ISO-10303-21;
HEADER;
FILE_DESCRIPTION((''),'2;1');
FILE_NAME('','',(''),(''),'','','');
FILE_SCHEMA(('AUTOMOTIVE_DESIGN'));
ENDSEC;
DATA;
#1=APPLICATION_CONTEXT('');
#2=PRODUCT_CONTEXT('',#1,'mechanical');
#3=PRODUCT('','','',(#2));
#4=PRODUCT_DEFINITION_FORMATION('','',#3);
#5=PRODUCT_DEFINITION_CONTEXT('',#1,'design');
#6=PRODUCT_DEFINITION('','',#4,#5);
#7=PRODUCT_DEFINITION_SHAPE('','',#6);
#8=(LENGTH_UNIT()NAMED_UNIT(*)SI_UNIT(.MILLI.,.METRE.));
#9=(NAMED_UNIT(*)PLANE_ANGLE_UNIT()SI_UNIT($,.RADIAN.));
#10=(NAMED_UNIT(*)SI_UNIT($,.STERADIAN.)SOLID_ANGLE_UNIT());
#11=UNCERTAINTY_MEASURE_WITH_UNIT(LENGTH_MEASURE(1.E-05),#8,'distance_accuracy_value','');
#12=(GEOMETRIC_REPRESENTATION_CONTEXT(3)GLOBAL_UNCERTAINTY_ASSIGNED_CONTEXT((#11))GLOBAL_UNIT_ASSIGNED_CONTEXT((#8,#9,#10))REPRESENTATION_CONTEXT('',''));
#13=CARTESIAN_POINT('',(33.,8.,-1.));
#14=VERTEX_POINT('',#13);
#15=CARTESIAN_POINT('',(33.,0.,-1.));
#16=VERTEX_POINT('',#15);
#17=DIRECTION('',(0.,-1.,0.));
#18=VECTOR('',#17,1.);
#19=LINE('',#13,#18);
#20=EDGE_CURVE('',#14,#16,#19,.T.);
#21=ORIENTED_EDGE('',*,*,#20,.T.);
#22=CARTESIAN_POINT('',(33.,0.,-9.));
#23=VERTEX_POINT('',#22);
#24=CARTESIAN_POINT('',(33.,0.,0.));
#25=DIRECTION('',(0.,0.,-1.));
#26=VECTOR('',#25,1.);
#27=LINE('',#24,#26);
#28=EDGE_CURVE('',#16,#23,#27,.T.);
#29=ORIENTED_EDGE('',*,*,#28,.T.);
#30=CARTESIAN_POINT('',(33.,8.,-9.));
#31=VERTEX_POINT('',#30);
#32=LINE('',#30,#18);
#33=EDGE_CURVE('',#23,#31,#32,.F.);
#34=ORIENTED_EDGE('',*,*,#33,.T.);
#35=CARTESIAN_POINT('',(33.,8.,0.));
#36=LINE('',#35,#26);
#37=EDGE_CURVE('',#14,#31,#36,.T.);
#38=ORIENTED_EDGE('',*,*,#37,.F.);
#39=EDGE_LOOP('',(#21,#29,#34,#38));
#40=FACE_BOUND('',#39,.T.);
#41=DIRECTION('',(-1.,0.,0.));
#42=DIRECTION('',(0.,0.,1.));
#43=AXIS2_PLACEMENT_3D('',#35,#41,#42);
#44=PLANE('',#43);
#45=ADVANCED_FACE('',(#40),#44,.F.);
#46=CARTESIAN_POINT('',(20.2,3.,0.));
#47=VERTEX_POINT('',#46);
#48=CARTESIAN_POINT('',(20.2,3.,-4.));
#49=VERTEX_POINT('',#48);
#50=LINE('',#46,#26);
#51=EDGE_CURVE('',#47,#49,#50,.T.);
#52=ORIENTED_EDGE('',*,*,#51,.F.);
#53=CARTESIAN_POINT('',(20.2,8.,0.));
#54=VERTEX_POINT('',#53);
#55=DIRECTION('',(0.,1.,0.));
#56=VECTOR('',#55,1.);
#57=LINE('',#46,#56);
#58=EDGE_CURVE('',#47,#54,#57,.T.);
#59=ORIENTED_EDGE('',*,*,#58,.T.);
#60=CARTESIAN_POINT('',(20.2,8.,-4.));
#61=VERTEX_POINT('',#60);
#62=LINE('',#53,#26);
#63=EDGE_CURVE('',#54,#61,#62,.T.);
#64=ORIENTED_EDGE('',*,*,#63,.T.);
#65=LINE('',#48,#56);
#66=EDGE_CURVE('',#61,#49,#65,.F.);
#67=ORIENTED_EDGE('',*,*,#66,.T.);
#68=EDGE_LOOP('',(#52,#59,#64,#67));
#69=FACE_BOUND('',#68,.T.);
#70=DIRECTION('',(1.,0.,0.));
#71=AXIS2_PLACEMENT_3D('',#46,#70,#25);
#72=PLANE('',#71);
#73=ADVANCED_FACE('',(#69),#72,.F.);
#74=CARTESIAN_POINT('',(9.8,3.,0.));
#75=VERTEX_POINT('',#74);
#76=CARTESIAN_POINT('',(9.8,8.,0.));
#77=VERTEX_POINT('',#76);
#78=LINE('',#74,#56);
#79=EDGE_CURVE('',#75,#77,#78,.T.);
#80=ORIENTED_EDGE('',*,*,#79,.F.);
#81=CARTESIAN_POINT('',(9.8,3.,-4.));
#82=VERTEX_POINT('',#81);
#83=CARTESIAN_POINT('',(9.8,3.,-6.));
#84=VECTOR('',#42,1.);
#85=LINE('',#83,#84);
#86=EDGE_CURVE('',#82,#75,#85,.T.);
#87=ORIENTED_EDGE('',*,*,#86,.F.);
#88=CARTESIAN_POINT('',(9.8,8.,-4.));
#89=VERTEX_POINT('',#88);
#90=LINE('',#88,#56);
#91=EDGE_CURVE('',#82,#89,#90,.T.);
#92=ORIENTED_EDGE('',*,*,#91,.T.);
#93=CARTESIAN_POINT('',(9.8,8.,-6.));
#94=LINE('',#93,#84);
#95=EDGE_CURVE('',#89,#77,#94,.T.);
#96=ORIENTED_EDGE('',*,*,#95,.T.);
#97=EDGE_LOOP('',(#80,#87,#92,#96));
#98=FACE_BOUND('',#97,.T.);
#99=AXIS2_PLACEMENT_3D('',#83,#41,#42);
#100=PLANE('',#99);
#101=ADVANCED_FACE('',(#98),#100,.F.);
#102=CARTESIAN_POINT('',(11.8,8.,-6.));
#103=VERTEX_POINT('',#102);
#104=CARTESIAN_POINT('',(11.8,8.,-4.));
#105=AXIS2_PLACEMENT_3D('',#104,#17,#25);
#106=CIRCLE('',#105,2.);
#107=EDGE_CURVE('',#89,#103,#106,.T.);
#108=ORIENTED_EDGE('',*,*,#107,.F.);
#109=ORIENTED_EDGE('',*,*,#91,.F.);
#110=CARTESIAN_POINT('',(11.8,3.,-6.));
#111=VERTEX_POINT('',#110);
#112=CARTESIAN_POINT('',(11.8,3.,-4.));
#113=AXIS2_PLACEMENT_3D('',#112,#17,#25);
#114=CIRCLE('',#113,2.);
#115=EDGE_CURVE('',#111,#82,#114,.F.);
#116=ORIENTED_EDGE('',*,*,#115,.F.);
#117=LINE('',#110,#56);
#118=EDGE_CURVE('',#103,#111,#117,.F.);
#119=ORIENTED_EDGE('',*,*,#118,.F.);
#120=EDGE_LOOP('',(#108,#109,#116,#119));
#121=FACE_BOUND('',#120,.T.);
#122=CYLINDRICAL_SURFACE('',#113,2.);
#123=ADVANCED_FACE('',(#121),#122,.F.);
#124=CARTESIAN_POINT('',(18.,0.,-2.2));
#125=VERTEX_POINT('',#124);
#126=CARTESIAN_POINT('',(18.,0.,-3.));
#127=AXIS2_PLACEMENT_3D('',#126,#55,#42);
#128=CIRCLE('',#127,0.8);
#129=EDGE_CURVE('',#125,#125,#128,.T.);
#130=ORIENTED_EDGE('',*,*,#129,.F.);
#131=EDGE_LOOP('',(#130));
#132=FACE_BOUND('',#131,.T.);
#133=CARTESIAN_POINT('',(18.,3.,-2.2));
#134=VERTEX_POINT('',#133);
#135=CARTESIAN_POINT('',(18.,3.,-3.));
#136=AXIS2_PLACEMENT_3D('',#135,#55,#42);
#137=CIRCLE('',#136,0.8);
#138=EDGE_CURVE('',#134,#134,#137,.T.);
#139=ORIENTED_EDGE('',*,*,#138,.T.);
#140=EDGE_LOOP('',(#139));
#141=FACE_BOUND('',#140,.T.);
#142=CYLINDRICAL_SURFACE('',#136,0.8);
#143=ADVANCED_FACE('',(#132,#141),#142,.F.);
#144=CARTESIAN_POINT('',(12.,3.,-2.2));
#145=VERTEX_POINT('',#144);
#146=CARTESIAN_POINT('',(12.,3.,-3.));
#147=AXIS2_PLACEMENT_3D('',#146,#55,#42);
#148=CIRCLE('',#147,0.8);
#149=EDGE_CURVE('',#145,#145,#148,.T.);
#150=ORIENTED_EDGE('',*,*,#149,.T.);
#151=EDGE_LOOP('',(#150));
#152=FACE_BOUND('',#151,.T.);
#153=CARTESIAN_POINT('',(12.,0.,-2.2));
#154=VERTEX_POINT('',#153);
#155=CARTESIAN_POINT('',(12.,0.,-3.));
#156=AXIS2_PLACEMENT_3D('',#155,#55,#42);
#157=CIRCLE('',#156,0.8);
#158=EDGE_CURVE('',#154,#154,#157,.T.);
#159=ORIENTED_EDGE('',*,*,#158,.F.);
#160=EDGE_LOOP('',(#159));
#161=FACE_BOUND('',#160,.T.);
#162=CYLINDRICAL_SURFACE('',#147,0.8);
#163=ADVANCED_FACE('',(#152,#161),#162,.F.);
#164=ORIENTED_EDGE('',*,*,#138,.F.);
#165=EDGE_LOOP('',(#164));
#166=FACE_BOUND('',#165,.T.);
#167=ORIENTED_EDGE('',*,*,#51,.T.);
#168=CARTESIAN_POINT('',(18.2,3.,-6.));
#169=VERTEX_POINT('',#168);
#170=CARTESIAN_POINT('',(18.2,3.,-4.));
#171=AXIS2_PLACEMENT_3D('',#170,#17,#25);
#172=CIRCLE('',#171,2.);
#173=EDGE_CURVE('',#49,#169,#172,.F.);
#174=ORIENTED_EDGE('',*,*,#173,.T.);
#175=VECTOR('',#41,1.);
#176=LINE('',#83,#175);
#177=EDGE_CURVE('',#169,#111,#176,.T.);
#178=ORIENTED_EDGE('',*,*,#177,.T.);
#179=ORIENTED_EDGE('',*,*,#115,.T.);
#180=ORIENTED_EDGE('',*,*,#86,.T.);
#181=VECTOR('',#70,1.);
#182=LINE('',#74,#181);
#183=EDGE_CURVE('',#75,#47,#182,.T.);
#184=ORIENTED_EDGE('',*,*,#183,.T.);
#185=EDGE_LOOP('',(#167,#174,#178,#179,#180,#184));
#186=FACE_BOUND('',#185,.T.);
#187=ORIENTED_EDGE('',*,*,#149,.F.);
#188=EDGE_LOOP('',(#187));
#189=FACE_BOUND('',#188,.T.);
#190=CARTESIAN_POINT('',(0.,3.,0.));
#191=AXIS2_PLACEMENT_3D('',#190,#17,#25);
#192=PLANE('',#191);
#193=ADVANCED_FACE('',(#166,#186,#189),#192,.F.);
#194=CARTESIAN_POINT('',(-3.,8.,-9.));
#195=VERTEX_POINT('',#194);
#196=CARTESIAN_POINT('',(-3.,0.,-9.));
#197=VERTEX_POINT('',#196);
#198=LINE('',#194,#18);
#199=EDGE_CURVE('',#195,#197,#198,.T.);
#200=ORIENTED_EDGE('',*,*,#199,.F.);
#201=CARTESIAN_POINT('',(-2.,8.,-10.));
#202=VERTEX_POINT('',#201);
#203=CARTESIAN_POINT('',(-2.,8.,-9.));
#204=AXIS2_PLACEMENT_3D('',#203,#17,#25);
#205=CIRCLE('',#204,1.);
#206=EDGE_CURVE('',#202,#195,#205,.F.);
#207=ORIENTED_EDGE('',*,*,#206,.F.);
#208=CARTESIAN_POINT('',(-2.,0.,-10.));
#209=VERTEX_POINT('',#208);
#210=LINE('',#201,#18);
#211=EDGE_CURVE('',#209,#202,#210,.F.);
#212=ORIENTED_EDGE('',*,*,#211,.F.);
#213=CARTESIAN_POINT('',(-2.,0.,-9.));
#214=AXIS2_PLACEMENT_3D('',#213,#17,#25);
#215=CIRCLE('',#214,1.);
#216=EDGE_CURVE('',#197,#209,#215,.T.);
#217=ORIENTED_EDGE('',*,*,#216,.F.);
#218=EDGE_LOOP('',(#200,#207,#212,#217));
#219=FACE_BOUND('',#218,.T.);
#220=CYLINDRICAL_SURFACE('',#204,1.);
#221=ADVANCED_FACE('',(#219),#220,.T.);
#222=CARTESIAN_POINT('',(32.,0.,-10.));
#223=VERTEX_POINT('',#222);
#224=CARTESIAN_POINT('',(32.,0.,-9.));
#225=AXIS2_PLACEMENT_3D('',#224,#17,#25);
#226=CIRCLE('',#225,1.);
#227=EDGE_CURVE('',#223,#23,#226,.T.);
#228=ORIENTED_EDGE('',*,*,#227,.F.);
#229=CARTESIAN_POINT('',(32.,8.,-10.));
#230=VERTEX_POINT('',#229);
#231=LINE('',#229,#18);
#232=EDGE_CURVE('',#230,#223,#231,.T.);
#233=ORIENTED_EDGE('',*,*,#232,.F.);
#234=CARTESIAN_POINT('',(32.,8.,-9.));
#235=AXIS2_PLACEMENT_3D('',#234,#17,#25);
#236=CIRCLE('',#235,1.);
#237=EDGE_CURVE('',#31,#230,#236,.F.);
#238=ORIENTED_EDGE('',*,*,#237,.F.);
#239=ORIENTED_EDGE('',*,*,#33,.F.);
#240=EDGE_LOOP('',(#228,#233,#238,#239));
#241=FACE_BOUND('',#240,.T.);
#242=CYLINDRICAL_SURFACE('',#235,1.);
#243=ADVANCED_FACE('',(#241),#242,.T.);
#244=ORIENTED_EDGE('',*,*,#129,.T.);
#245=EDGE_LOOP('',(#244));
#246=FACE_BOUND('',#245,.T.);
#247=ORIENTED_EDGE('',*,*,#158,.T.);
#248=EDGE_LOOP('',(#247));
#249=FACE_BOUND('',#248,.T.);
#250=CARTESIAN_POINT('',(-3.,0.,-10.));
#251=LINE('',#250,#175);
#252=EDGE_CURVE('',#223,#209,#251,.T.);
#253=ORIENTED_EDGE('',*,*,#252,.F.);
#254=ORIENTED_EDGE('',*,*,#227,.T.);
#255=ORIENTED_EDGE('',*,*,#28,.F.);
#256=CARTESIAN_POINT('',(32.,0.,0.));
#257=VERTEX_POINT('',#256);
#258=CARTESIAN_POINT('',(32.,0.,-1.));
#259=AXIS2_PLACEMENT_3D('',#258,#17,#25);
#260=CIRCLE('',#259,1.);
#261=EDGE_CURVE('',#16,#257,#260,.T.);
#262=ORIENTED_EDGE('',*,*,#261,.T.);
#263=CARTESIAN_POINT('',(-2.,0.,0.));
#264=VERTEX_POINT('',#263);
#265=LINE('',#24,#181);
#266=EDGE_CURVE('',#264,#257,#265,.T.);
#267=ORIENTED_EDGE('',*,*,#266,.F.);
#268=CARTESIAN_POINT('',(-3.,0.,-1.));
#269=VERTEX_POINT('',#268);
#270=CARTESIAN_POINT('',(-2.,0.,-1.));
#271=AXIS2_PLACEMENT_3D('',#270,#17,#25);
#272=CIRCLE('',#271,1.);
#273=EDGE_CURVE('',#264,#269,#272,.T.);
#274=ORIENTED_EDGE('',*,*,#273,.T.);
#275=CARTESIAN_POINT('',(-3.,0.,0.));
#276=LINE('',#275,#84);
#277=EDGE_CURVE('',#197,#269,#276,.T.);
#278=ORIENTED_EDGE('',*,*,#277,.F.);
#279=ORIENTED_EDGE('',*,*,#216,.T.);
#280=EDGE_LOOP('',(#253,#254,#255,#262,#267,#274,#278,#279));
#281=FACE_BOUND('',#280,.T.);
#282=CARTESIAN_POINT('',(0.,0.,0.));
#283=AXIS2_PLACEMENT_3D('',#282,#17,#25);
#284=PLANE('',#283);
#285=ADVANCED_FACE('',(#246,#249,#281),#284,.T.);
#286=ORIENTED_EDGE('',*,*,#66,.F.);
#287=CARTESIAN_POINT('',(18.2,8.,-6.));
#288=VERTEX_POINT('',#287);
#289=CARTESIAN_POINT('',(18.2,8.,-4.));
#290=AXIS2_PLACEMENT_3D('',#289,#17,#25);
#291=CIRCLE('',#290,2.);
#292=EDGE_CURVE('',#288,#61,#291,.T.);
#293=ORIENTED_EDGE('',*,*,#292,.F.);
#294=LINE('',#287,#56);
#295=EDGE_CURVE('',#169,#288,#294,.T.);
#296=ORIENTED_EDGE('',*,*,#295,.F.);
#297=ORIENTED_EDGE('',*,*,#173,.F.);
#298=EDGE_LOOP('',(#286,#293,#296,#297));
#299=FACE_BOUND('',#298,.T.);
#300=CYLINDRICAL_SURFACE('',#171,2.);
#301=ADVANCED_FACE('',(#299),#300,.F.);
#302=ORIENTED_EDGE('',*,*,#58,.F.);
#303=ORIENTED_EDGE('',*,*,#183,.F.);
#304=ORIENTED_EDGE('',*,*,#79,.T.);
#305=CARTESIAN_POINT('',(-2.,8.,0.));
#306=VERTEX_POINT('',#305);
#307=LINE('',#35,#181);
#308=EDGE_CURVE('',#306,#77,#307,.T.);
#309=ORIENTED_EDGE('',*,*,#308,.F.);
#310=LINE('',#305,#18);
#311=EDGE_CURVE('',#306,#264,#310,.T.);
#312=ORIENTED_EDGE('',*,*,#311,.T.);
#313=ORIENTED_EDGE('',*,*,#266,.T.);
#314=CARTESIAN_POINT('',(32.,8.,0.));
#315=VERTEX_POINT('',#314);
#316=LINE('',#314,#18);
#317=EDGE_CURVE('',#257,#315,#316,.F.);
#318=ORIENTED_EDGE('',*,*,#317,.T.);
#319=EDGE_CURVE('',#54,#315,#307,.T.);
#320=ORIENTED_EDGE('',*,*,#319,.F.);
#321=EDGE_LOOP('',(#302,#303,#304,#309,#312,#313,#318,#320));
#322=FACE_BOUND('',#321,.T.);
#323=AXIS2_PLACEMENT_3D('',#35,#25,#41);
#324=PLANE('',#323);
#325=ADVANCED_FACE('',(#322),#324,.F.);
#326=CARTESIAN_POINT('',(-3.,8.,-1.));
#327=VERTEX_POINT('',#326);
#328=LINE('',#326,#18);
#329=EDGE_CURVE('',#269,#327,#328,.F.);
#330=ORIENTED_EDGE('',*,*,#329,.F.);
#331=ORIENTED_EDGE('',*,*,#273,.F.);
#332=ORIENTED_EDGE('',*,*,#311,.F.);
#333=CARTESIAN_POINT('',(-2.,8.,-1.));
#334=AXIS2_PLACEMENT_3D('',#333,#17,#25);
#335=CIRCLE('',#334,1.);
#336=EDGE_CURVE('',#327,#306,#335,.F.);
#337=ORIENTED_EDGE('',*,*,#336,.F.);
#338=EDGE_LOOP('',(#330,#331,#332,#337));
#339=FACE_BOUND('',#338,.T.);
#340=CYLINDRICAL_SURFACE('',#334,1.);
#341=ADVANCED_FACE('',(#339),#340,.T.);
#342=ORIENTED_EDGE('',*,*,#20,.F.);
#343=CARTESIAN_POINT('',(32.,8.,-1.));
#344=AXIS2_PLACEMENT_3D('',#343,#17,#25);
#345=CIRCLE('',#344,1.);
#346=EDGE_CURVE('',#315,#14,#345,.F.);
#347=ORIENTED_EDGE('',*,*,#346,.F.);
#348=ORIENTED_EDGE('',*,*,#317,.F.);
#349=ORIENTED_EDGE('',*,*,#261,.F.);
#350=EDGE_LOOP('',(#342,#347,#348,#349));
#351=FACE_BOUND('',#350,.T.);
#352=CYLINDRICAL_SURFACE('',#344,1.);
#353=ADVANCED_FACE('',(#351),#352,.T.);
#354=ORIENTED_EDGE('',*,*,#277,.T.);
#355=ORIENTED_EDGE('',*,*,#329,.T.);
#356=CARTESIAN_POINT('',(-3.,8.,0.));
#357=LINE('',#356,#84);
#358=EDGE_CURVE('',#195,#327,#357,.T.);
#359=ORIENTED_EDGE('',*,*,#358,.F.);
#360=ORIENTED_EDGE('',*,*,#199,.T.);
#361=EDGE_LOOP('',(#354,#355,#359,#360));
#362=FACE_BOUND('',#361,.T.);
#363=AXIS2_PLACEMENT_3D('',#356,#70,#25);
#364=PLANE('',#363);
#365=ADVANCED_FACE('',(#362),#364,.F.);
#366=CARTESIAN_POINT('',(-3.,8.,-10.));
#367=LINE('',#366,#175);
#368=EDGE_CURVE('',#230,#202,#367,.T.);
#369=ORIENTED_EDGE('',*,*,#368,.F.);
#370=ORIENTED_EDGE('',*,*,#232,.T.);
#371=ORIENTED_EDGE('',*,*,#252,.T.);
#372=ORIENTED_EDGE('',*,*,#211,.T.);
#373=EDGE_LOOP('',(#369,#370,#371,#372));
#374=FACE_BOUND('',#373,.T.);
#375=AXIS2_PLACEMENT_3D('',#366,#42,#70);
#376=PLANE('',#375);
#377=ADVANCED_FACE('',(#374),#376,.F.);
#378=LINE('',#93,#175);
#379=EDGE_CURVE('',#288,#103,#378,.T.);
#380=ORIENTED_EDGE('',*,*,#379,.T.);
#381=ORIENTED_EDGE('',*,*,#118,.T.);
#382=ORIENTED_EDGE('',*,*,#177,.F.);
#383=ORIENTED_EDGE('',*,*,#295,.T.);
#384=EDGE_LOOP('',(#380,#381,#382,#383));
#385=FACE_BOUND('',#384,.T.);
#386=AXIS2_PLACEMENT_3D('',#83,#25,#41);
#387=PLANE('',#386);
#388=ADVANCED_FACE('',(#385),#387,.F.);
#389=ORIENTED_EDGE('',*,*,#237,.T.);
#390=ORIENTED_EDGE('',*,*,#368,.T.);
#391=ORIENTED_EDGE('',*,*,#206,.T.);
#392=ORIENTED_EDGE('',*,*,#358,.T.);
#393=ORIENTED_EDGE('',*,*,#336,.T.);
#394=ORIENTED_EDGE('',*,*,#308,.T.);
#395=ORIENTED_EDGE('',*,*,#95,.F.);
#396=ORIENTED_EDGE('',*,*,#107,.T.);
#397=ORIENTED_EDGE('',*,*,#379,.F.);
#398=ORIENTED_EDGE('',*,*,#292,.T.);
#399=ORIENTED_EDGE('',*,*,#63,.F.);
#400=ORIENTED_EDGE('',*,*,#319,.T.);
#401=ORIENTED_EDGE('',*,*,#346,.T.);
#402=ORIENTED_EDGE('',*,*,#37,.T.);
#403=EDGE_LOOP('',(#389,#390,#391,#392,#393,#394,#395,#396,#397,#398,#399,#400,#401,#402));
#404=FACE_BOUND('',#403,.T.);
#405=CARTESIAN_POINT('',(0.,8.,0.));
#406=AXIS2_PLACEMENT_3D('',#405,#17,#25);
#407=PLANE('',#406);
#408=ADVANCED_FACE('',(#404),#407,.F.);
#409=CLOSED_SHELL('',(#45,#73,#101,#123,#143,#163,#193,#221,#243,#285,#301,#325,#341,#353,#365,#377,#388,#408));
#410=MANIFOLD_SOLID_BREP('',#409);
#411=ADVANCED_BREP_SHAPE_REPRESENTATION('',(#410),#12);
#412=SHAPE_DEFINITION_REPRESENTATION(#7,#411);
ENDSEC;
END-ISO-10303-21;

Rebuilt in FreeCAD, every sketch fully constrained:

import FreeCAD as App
import Part
import Sketcher

V = App.Vector


def edges_at(feature, points):
    """Names of the edges that pass closest to the given points."""
    edges = feature.Shape.Edges
    near = lambda p: min(range(len(edges)), key=lambda i: edges[i].distToShape(Part.Vertex(*p))[0])
    return sorted({f"Edge{near(p) + 1}" for p in points})


def add_polygon(sketch, points):
    """Adds a closed chain of lines whose ends are joined by coincident constraints."""
    first, n = sketch.GeometryCount, len(points)
    for a, b in zip(points, points[1:] + points[:1]):
        sketch.addGeometry(Part.LineSegment(App.Vector(*a, 0), App.Vector(*b, 0)), False)
    for i in range(n):
        sketch.addConstraint(Sketcher.Constraint("Coincident", first + i, 2, first + (i + 1) % n, 1))

doc = App.newDocument("Part")
body = doc.addObject("PartDesign::Body", "Body")

# Sketch on XZ plane
sketch1 = body.newObject("Sketcher::SketchObject", "Sketch")
sketch1.AttachmentSupport = (doc.getObject("XZ_Plane"), [""])
sketch1.MapMode = "FlatFace"
add_polygon(sketch1, [(-3, -10), (-3, 0), (33, 0), (33, -10)])  # lines 0-3
sketch1.addConstraint([
    Sketcher.Constraint("Vertical", 0),
    Sketcher.Constraint("Horizontal", 1),
    Sketcher.Constraint("Vertical", 2),
    Sketcher.Constraint("Horizontal", 3),
    Sketcher.Constraint("PointOnObject", 0, 2, -1),
    Sketcher.Constraint("DistanceX", 1, 1, 1, 2, 36.0),
    Sketcher.Constraint("DistanceY", 0, 1, 0, 2, 10.0),
    Sketcher.Constraint("DistanceX", 0, 2, -1, 1, 3.0),
])
pad1 = body.newObject("PartDesign::Pad", "Pad")
pad1.Profile = sketch1
pad1.Length = 8
pad1.Reversed = True
doc.recompute()

fillet = body.newObject("PartDesign::Fillet", "Fillet")
fillet.Base = (pad1, edges_at(pad1, [
    (33, 4, 0),
    (-3, 4, 0),
    (-3, 4, -10),
    (33, 4, -10),
]))
fillet.Radius = 1

# Sketch on XZ plane
sketch2 = body.newObject("Sketcher::SketchObject", "Sketch001")
sketch2.AttachmentSupport = (doc.getObject("XZ_Plane"), [""])
sketch2.MapMode = "FlatFace"
sketch2.AttachmentOffset = App.Placement(V(0, 0, -8), App.Rotation())
add_polygon(sketch2, [(9.8, -6), (9.8, 0), (20.2, 0), (20.2, -6)])  # lines 0-3
sketch2.addConstraint([
    Sketcher.Constraint("Vertical", 0),
    Sketcher.Constraint("Horizontal", 1),
    Sketcher.Constraint("Vertical", 2),
    Sketcher.Constraint("Horizontal", 3),
    Sketcher.Constraint("PointOnObject", 0, 2, -1),
    Sketcher.Constraint("DistanceY", 0, 1, 0, 2, 6.0),
    Sketcher.Constraint("DistanceX", 1, 1, 1, 2, 10.4),
    Sketcher.Constraint("DistanceX", -1, 1, 0, 2, 9.8),
])
pocket1 = body.newObject("PartDesign::Pocket", "Pocket")
pocket1.Profile = sketch2
pocket1.Length = 5
pocket1.Reversed = True
doc.recompute()

fillet2 = body.newObject("PartDesign::Fillet", "Fillet001")
fillet2.Base = (pocket1, edges_at(pocket1, [(20.2, 5.5, -6), (9.8, 5.5, -6)]))
fillet2.Radius = 2

# Sketch on XZ plane
sketch3 = body.newObject("Sketcher::SketchObject", "Sketch002")
sketch3.AttachmentSupport = (doc.getObject("XZ_Plane"), [""])
sketch3.MapMode = "FlatFace"
sketch3.AttachmentOffset = App.Placement(V(0, 0, -3), App.Rotation())
sketch3.addGeometry([
    Part.Circle(V(12, -3, 0), V(0, 0, 1), 0.8),
    Part.Circle(V(18, -3, 0), V(0, 0, 1), 0.8),
], False)
sketch3.addConstraint([
    Sketcher.Constraint("Equal", 0, 1),
    Sketcher.Constraint("Horizontal", 0, 3, 1, 3),
    Sketcher.Constraint("Diameter", 0, 1.6),
    Sketcher.Constraint("DistanceX", -1, 1, 0, 3, 12.0),
    Sketcher.Constraint("DistanceY", 0, 3, -1, 1, 3.0),
    Sketcher.Constraint("DistanceX", -1, 1, 1, 3, 18.0),
])
doc.recompute()
hole = body.newObject("PartDesign::Hole", "Hole")
hole.Profile = sketch3
hole.ThreadType = "None"
hole.Diameter = 1.6
hole.DepthType = "ThroughAll"
hole.Reversed = True

doc.recompute()
